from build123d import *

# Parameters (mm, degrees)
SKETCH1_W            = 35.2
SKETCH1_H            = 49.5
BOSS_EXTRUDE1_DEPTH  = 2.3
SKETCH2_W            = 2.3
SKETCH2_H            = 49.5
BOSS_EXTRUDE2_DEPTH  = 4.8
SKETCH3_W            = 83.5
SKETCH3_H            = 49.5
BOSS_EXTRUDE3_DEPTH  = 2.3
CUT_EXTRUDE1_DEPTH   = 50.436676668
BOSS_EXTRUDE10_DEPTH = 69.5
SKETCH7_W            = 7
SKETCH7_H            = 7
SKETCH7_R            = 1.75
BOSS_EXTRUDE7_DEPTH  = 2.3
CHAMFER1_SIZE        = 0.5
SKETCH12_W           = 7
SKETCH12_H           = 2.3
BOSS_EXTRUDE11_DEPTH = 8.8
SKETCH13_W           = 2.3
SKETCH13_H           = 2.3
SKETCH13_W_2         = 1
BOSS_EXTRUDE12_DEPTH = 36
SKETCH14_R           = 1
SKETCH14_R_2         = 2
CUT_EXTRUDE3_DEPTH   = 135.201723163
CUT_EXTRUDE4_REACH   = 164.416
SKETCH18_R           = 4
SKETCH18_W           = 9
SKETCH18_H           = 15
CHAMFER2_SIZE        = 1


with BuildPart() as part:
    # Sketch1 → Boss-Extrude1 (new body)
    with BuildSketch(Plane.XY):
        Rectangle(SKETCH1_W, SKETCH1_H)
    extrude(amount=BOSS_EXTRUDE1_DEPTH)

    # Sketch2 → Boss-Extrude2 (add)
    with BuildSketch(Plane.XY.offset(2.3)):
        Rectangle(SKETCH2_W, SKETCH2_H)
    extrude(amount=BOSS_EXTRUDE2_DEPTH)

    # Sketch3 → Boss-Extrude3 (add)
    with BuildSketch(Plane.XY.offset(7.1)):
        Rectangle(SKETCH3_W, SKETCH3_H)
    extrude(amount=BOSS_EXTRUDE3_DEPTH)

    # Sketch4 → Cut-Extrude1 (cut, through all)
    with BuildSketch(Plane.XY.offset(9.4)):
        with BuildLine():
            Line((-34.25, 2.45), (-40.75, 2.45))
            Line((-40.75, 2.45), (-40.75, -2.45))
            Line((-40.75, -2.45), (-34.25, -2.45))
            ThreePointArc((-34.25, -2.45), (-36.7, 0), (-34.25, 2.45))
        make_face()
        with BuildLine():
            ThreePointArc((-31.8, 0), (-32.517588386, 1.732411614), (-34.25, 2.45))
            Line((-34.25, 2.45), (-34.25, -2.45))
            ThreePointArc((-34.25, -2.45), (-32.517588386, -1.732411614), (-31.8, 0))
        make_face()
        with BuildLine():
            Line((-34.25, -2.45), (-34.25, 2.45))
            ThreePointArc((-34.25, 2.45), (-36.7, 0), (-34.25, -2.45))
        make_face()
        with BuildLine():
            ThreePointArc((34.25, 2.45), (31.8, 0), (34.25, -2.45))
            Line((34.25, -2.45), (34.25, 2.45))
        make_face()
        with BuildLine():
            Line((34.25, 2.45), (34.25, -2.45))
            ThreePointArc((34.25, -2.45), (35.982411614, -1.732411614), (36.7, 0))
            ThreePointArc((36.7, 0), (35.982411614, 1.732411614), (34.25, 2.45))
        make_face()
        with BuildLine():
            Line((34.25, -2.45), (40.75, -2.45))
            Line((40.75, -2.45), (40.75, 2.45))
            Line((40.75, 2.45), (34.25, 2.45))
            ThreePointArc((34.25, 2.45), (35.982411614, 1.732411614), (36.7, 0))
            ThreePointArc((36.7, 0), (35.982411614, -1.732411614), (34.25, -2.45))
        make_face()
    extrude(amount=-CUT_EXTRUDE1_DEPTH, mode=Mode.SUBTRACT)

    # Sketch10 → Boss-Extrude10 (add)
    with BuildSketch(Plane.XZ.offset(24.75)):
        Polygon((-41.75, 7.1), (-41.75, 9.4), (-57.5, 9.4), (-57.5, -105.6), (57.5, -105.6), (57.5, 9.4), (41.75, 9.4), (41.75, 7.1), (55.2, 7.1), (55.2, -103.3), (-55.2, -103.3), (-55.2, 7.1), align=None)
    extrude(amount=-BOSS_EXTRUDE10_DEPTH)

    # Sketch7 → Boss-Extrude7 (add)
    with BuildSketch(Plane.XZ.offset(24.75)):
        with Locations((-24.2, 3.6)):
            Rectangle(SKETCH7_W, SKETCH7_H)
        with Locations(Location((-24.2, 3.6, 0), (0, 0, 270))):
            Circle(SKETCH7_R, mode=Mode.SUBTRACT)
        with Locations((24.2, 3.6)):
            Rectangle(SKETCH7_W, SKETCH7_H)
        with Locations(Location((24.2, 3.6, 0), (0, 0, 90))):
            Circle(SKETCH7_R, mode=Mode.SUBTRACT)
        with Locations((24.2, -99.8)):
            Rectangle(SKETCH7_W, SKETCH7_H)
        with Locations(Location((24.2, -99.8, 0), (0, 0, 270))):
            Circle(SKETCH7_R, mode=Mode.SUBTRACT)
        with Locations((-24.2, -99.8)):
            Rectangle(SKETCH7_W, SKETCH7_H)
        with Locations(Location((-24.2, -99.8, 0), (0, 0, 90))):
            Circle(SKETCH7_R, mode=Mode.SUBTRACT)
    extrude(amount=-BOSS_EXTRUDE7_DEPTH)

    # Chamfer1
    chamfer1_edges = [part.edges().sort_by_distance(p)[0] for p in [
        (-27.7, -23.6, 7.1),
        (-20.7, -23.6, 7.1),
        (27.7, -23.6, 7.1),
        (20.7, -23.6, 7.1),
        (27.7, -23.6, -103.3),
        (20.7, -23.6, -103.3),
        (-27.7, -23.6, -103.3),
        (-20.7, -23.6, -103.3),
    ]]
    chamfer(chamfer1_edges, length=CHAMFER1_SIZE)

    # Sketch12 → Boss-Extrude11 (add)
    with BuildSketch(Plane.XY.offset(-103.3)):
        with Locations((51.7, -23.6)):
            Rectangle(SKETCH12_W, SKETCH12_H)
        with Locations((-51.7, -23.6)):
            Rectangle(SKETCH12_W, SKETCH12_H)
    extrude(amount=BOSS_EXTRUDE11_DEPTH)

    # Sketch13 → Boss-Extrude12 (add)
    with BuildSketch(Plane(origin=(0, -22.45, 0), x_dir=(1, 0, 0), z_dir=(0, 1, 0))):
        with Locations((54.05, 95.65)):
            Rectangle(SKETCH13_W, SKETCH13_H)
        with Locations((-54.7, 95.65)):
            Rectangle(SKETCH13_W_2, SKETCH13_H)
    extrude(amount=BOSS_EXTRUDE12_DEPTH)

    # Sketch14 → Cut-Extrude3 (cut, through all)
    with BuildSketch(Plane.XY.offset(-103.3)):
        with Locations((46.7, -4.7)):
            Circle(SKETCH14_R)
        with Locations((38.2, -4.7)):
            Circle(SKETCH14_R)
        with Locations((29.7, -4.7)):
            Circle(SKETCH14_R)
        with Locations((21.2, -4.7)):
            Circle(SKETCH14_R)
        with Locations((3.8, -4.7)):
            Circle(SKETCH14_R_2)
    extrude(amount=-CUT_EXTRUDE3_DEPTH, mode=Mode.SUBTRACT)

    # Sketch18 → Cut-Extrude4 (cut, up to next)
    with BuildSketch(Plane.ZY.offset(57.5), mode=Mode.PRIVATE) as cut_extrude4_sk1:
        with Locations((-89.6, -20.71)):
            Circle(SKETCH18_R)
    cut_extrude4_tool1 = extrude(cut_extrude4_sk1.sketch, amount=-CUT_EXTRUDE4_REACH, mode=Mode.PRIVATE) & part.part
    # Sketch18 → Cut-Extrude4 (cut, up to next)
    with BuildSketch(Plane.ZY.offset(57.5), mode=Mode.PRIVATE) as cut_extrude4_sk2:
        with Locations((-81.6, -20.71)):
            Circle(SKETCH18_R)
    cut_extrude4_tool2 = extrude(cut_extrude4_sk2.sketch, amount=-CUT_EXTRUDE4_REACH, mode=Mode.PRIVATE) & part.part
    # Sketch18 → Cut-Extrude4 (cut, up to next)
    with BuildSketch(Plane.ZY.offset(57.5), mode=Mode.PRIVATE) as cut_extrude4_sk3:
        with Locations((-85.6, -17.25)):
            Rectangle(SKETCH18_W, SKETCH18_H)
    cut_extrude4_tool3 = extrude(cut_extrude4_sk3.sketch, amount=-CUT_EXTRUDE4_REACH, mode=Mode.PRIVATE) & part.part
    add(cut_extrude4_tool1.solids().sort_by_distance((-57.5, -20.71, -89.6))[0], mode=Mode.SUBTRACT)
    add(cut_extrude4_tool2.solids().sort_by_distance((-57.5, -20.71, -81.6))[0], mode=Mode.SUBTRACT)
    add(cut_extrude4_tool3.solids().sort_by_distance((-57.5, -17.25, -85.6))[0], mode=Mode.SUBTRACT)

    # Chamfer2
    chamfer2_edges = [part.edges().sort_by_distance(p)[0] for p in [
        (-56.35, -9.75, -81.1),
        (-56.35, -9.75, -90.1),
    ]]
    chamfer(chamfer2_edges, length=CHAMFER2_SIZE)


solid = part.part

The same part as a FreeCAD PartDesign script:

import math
import FreeCAD as App
import Part
import Sketcher
from FreeCAD import Vector
Q = App.Units.Quantity


def edges_at(feature, points):
    """Names of the edges that pass closest to the given points."""
    edges = feature.Shape.Edges
    near = lambda p: min(range(len(edges)), key=lambda i: edges[i].distToShape(Part.Vertex(*p))[0])
    return sorted({f"Edge{near(p) + 1}" for p in points})


def add_polygon(sketch, points):
    """Adds a closed chain of lines whose ends are joined by coincident constraints."""
    first, n = sketch.GeometryCount, len(points)
    for a, b in zip(points, points[1:] + points[:1]):
        sketch.addGeometry(Part.LineSegment(App.Vector(*a, 0), App.Vector(*b, 0)), False)
    for i in range(n):
        sketch.addConstraint(Sketcher.Constraint("Coincident", first + i, 2, first + (i + 1) % n, 1))

doc = App.newDocument("Part")
body = doc.addObject("PartDesign::Body", "Body")

# Sketch on XY plane
sketch1 = doc.addObject("Sketcher::SketchObject", "Sketch")
body.addObject(sketch1)
sketch1.AttachmentSupport = (doc.XY_Plane, [""])
sketch1.MapMode = "FlatFace"
add_polygon(sketch1, [(-18, 25), (-18, -25), (18, -25), (18, 25)])  # lines 0-3
sketch1.addConstraint(Sketcher.Constraint("Vertical", 0))
sketch1.addConstraint(Sketcher.Constraint("Horizontal", 1))
sketch1.addConstraint(Sketcher.Constraint("Vertical", 2))
sketch1.addConstraint(Sketcher.Constraint("Horizontal", 3))
sketch1.addConstraint(Sketcher.Constraint("Symmetric", 0, 2, 2, 2, -1, 1))
sketch1.addConstraint(Sketcher.Constraint("DistanceX", 1, 1, 1, 2, Q("35.2 mm")))
sketch1.addConstraint(Sketcher.Constraint("DistanceY", 0, 2, 0, 1, Q("49.5 mm")))
pad1 = doc.addObject("PartDesign::Pad", "Pad")
body.addObject(pad1)
pad1.Profile = sketch1
pad1.Length = 2.3

# Sketch on XY plane
sketch2 = doc.addObject("Sketcher::SketchObject", "Sketch001")
body.addObject(sketch2)
sketch2.AttachmentSupport = (doc.XY_Plane, [""])
sketch2.MapMode = "FlatFace"
sketch2.AttachmentOffset = App.Placement(Vector(0, 0, 2.3), App.Rotation())
add_polygon(sketch2, [(-1.1, 24.8), (-1.1, -24.8), (1.1, -24.8), (1.1, 24.8)])  # lines 0-3
sketch2.addConstraint(Sketcher.Constraint("Vertical", 0))
sketch2.addConstraint(Sketcher.Constraint("Horizontal", 1))
sketch2.addConstraint(Sketcher.Constraint("Vertical", 2))
sketch2.addConstraint(Sketcher.Constraint("Horizontal", 3))
sketch2.addConstraint(Sketcher.Constraint("Symmetric", 0, 2, 2, 2, -1, 1))
sketch2.addConstraint(Sketcher.Constraint("DistanceX", 1, 1, 1, 2, Q("2.3 mm")))
sketch2.addConstraint(Sketcher.Constraint("DistanceY", 0, 2, 0, 1, Q("49.5 mm")))
pad2 = doc.addObject("PartDesign::Pad", "Pad001")
body.addObject(pad2)
pad2.Profile = sketch2
pad2.Length = 4.8

# Sketch on XY plane
sketch3 = doc.addObject("Sketcher::SketchObject", "Sketch002")
body.addObject(sketch3)
sketch3.AttachmentSupport = (doc.XY_Plane, [""])
sketch3.MapMode = "FlatFace"
sketch3.AttachmentOffset = App.Placement(Vector(0, 0, 7.1), App.Rotation())
add_polygon(sketch3, [(-42, 25), (-42, -25), (42, -25), (42, 25)])  # lines 0-3
sketch3.addConstraint(Sketcher.Constraint("Vertical", 0))
sketch3.addConstraint(Sketcher.Constraint("Horizontal", 1))
sketch3.addConstraint(Sketcher.Constraint("Vertical", 2))
sketch3.addConstraint(Sketcher.Constraint("Horizontal", 3))
sketch3.addConstraint(Sketcher.Constraint("Symmetric", 0, 2, 2, 2, -1, 1))
sketch3.addConstraint(Sketcher.Constraint("DistanceX", 1, 1, 1, 2, Q("83.5 mm")))
sketch3.addConstraint(Sketcher.Constraint("DistanceY", 0, 2, 0, 1, Q("49.5 mm")))
pad3 = doc.addObject("PartDesign::Pad", "Pad002")
body.addObject(pad3)
pad3.Profile = sketch3
pad3.Length = 2.3

# Sketch on XY plane
sketch4 = doc.addObject("Sketcher::SketchObject", "Sketch003")
body.addObject(sketch4)
sketch4.AttachmentSupport = (doc.XY_Plane, [""])
sketch4.MapMode = "FlatFace"
sketch4.AttachmentOffset = App.Placement(Vector(0, 0, 9.4), App.Rotation())
sketch4.addGeometry(Part.LineSegment(Vector(-40.8, 2.5, 0), Vector(-40.8, -2.5, 0)), False)
sketch4.addGeometry(Part.LineSegment(Vector(-40.8, -2.5, 0), Vector(-34.2, -2.5, 0)), False)
sketch4.addGeometry(Part.ArcOfCircle(Part.Circle(Vector(-34.2, 0, 0), Vector(0, 0, 1), 2.5), math.radians(-90), math.radians(0)), False)
sketch4.addGeometry(Part.ArcOfCircle(Part.Circle(Vector(-34.2, 0, 0), Vector(0, 0, 1), 2.5), math.radians(0), math.radians(90)), False)
sketch4.addGeometry(Part.LineSegment(Vector(-34.2, 2.5, 0), Vector(-40.8, 2.5, 0)), False)
sketch4.addGeometry(Part.ArcOfCircle(Part.Circle(Vector(34.2, 0, 0), Vector(0, 0, 1), 2.5), math.radians(90), math.radians(270)), False)
sketch4.addGeometry(Part.LineSegment(Vector(34.2, -2.5, 0), Vector(40.8, -2.5, 0)), False)
sketch4.addGeometry(Part.LineSegment(Vector(40.8, -2.5, 0), Vector(40.8, 2.5, 0)), False)
sketch4.addGeometry(Part.LineSegment(Vector(40.8, 2.5, 0), Vector(34.2, 2.5, 0)), False)
sketch4.addConstraint(Sketcher.Constraint("Coincident", 0, 2, 1, 1))
sketch4.addConstraint(Sketcher.Constraint("Tangent", 1, 2, 2, 1))
sketch4.addConstraint(Sketcher.Constraint("Tangent", 2, 2, 3, 1))
sketch4.addConstraint(Sketcher.Constraint("Tangent", 3, 2, 4, 1))
sketch4.addConstraint(Sketcher.Constraint("Coincident", 4, 2, 0, 1))
sketch4.addConstraint(Sketcher.Constraint("Tangent", 5, 2, 6, 1))
sketch4.addConstraint(Sketcher.Constraint("Coincident", 6, 2, 7, 1))
sketch4.addConstraint(Sketcher.Constraint("Coincident", 7, 2, 8, 1))
sketch4.addConstraint(Sketcher.Constraint("Tangent", 8, 2, 5, 1))
sketch4.addConstraint(Sketcher.Constraint("Vertical", 0))
sketch4.addConstraint(Sketcher.Constraint("Horizontal", 1))
sketch4.addConstraint(Sketcher.Constraint("Horizontal", 4))
sketch4.addConstraint(Sketcher.Constraint("Horizontal", 6))
sketch4.addConstraint(Sketcher.Constraint("Vertical", 7))
sketch4.addConstraint(Sketcher.Constraint("Horizontal", 8))
sketch4.addConstraint(Sketcher.Constraint("Equal", 2, 3))
sketch4.addConstraint(Sketcher.Constraint("Equal", 3, 5))
sketch4.addConstraint(Sketcher.Constraint("Symmetric", 2, 3, 5, 3, -1, 1))
sketch4.addConstraint(Sketcher.Constraint("Symmetric", 0, 2, 6, 2, -2))
sketch4.addConstraint(Sketcher.Constraint("PointOnObject", 2, 2, -1))
sketch4.addConstraint(Sketcher.Constraint("Radius", 2, Q("2.45 mm")))
sketch4.addConstraint(Sketcher.Constraint("DistanceX", 1, 1, 1, 2, Q("6.5 mm")))
sketch4.addConstraint(Sketcher.Constraint("DistanceX", 0, 2, 5, 3, Q("75 mm")))
pocket1 = doc.addObject("PartDesign::Pocket", "Pocket")
body.addObject(pocket1)
pocket1.Profile = sketch4
pocket1.Type = "ThroughAll"

# Sketch on XZ plane
sketch5 = doc.addObject("Sketcher::SketchObject", "Sketch004")
body.addObject(sketch5)
sketch5.AttachmentSupport = (doc.XZ_Plane, [""])
sketch5.MapMode = "FlatFace"
sketch5.AttachmentOffset = App.Placement(Vector(0, 0, 24.75), App.Rotation())
add_polygon(sketch5, [(-41.8, 7.1), (-41.8, 9.4), (-57.5, 9.4), (-57.5, -105.6), (57.5, -105.6), (57.5, 9.4), (41.8, 9.4), (41.8, 7.1), (55.2, 7.1), (55.2, -103.3), (-55.2, -103.3), (-55.2, 7.1)])  # lines 0-11
sketch5.addConstraint(Sketcher.Constraint("Vertical", 0))
sketch5.addConstraint(Sketcher.Constraint("Horizontal", 1))
sketch5.addConstraint(Sketcher.Constraint("Vertical", 2))
sketch5.addConstraint(Sketcher.Constraint("Horizontal", 3))
sketch5.addConstraint(Sketcher.Constraint("Vertical", 4))
sketch5.addConstraint(Sketcher.Constraint("Horizontal", 5))
sketch5.addConstraint(Sketcher.Constraint("Vertical", 6))
sketch5.addConstraint(Sketcher.Constraint("Horizontal", 7))
sketch5.addConstraint(Sketcher.Constraint("Vertical", 8))
sketch5.addConstraint(Sketcher.Constraint("Horizontal", 9))
sketch5.addConstraint(Sketcher.Constraint("Vertical", 10))
sketch5.addConstraint(Sketcher.Constraint("Horizontal", 11))
sketch5.addConstraint(Sketcher.Constraint("Symmetric", 1, 2, 4, 2, -2))
sketch5.addConstraint(Sketcher.Constraint("Symmetric", 7, 2, 10, 2, -2))
sketch5.addConstraint(Sketcher.Constraint("Equal", 1, 5))
sketch5.addConstraint(Sketcher.Constraint("Equal", 3, 2))
sketch5.addConstraint(Sketcher.Constraint("Equal", 9, 8))
sketch5.addConstraint(Sketcher.Constraint("DistanceX", 3, 1, 3, 2, Q("115 mm")))
sketch5.addConstraint(Sketcher.Constraint("DistanceX", 9, 2, 9, 1, Q("110.4 mm")))
sketch5.addConstraint(Sketcher.Constraint("DistanceY", 0, 1, 0, 2, Q("2.3 mm")))
sketch5.addConstraint(Sketcher.Constraint("DistanceX", 1, 2, 1, 1, Q("15.75 mm")))
sketch5.addConstraint(Sketcher.Constraint("DistanceY", -1, 1, 0, 2, Q("9.4 mm")))
pad4 = doc.addObject("PartDesign::Pad", "Pad003")
body.addObject(pad4)
pad4.Profile = sketch5
pad4.Length = 69.5
pad4.Reversed = True

# Sketch on XZ plane
sketch6 = doc.addObject("Sketcher::SketchObject", "Sketch005")
body.addObject(sketch6)
sketch6.AttachmentSupport = (doc.XZ_Plane, [""])
sketch6.MapMode = "FlatFace"
sketch6.AttachmentOffset = App.Placement(Vector(0, 0, 24.75), App.Rotation())
add_polygon(sketch6, [(-27.7, 7.1), (-27.7, 0.1), (-20.7, 0.1), (-20.7, 7.1)])  # lines 0-3
sketch6.addGeometry(Part.Circle(Vector(-24.2, 3.6, 0), Vector(0, 0, 1), 1.8), False)  # 4
add_polygon(sketch6, [(20.7, 7.1), (20.7, 0.1), (27.7, 0.1), (27.7, 7.1)])  # lines 5-8
sketch6.addGeometry(Part.Circle(Vector(24.2, 3.6, 0), Vector(0, 0, 1), 1.8), False)  # 9
add_polygon(sketch6, [(20.7, -96.3), (20.7, -103.3), (27.7, -103.3), (27.7, -96.3)])  # lines 10-13
sketch6.addGeometry(Part.Circle(Vector(24.2, -99.8, 0), Vector(0, 0, 1), 1.8), False)  # 14
add_polygon(sketch6, [(-27.7, -96.3), (-27.7, -103.3), (-20.7, -103.3), (-20.7, -96.3)])  # lines 15-18
sketch6.addGeometry(Part.Circle(Vector(-24.2, -99.8, 0), Vector(0, 0, 1), 1.8), False)  # 19
sketch6.addConstraint(Sketcher.Constraint("Vertical", 0))
sketch6.addConstraint(Sketcher.Constraint("Horizontal", 1))
sketch6.addConstraint(Sketcher.Constraint("Vertical", 2))
sketch6.addConstraint(Sketcher.Constraint("Horizontal", 3))
sketch6.addConstraint(Sketcher.Constraint("Vertical", 5))
sketch6.addConstraint(Sketcher.Constraint("Horizontal", 6))
sketch6.addConstraint(Sketcher.Constraint("Vertical", 7))
sketch6.addConstraint(Sketcher.Constraint("Horizontal", 8))
sketch6.addConstraint(Sketcher.Constraint("Vertical", 10))
sketch6.addConstraint(Sketcher.Constraint("Horizontal", 11))
sketch6.addConstraint(Sketcher.Constraint("Vertical", 12))
sketch6.addConstraint(Sketcher.Constraint("Horizontal", 13))
sketch6.addConstraint(Sketcher.Constraint("Vertical", 15))
sketch6.addConstraint(Sketcher.Constraint("Horizontal", 16))
sketch6.addConstraint(Sketcher.Constraint("Vertical", 17))
sketch6.addConstraint(Sketcher.Constraint("Horizontal", 18))
sketch6.addConstraint(Sketcher.Constraint("Equal", 4, 9))
sketch6.addConstraint(Sketcher.Constraint("Equal", 9, 14))
sketch6.addConstraint(Sketcher.Constraint("Equal", 14, 19))
sketch6.addConstraint(Sketcher.Constraint("Symmetric", 4, 3, 9, 3, -2))
sketch6.addConstraint(Sketcher.Constraint("Symmetric", 14, 3, 19, 3, -2))
sketch6.addConstraint(Sketcher.Constraint("Symmetric", 1, 2, 5, 2, -2))
sketch6.addConstraint(Sketcher.Constraint("Symmetric", 3, 2, 7, 2, -2))
sketch6.addConstraint(Sketcher.Constraint("Symmetric", 11, 2, 15, 2, -2))
sketch6.addConstraint(Sketcher.Constraint("Symmetric", 13, 2, 17, 2, -2))
sketch6.addConstraint(Sketcher.Constraint("Vertical", 9, 3, 14, 3))
sketch6.addConstraint(Sketcher.Constraint("Vertical", 8, 2, 10, 2))
sketch6.addConstraint(Sketcher.Constraint("Vertical", 7, 2, 11, 2))
sketch6.addConstraint(Sketcher.Constraint("Equal", 18, 0))
sketch6.addConstraint(Sketcher.Constraint("Equal", 7, 10))
sketch6.addConstraint(Sketcher.Constraint("Diameter", 4, Q("3.5 mm")))
sketch6.addConstraint(Sketcher.Constraint("DistanceX", 1, 1, 1, 2, Q("7 mm")))
sketch6.addConstraint(Sketcher.Constraint("DistanceX", 4, 3, -1, 1, Q("24.2 mm")))
sketch6.addConstraint(Sketcher.Constraint("DistanceY", -1, 1, 4, 3, Q("3.6 mm")))
sketch6.addConstraint(Sketcher.Constraint("DistanceY", 14, 3, -1, 1, Q("99.8 mm")))
sketch6.addConstraint(Sketcher.Constraint("DistanceX", 0, 2, -1, 1, Q("27.7 mm")))
sketch6.addConstraint(Sketcher.Constraint("DistanceY", -1, 1, 0, 2, Q("0.1 mm")))
sketch6.addConstraint(Sketcher.Constraint("DistanceY", 10, 2, -1, 1, Q("103.3 mm")))
pad5 = doc.addObject("PartDesign::Pad", "Pad004")
body.addObject(pad5)
pad5.Profile = sketch6
pad5.Length = 2.3
pad5.Reversed = True
doc.recompute()

chamfer = doc.addObject("PartDesign::Chamfer", "Chamfer")
body.addObject(chamfer)
chamfer.Base = (pad5, edges_at(pad5, [
    (-27.7, -23.6, 7.1),
    (-20.7, -23.6, 7.1),
    (27.7, -23.6, 7.1),
    (20.7, -23.6, 7.1),
    (27.7, -23.6, -103.3),
    (20.7, -23.6, -103.3),
    (-27.7, -23.6, -103.3),
    (-20.7, -23.6, -103.3),
]))
chamfer.Size = 0.5

# Sketch on XY plane
sketch7 = doc.addObject("Sketcher::SketchObject", "Sketch006")
body.addObject(sketch7)
sketch7.AttachmentSupport = (doc.XY_Plane, [""])
sketch7.MapMode = "FlatFace"
sketch7.AttachmentOffset = App.Placement(Vector(0, 0, -103.3), App.Rotation())
add_polygon(sketch7, [(48.2, -22.4), (48.2, -24.8), (55.2, -24.8), (55.2, -22.4)])  # lines 0-3
add_polygon(sketch7, [(-55.2, -22.4), (-55.2, -24.8), (-48.2, -24.8), (-48.2, -22.4)])  # lines 4-7
sketch7.addConstraint(Sketcher.Constraint("Vertical", 0))
sketch7.addConstraint(Sketcher.Constraint("Horizontal", 1))
sketch7.addConstraint(Sketcher.Constraint("Vertical", 2))
sketch7.addConstraint(Sketcher.Constraint("Horizontal", 3))
sketch7.addConstraint(Sketcher.Constraint("Vertical", 4))
sketch7.addConstraint(Sketcher.Constraint("Horizontal", 5))
sketch7.addConstraint(Sketcher.Constraint("Vertical", 6))
sketch7.addConstraint(Sketcher.Constraint("Horizontal", 7))
sketch7.addConstraint(Sketcher.Constraint("Symmetric", 1, 2, 4, 2, -2))
sketch7.addConstraint(Sketcher.Constraint("Symmetric", 3, 2, 6, 2, -2))
sketch7.addConstraint(Sketcher.Constraint("DistanceX", 1, 1, 1, 2, Q("7 mm")))
sketch7.addConstraint(Sketcher.Constraint("DistanceY", 0, 2, 0, 1, Q("2.3 mm")))
sketch7.addConstraint(Sketcher.Constraint("DistanceX", -1, 1, 0, 2, Q("48.2 mm")))
sketch7.addConstraint(Sketcher.Constraint("DistanceY", 0, 2, -1, 1, Q("24.75 mm")))
pad6 = doc.addObject("PartDesign::Pad", "Pad005")
body.addObject(pad6)
pad6.Profile = sketch7
pad6.Length = 8.8

# Sketch on XZ plane
sketch8 = doc.addObject("Sketcher::SketchObject", "Sketch007")
body.addObject(sketch8)
sketch8.AttachmentSupport = (doc.XZ_Plane, [""])
sketch8.MapMode = "FlatFace"
sketch8.AttachmentOffset = App.Placement(Vector(0, 0, 22.45), App.Rotation())
add_polygon(sketch8, [(52.9, -96.8), (52.9, -94.5), (55.2, -94.5), (55.2, -96.8)])  # lines 0-3
add_polygon(sketch8, [(-55.2, -96.8), (-55.2, -94.5), (-54.2, -94.5), (-54.2, -96.8)])  # lines 4-7
sketch8.addConstraint(Sketcher.Constraint("Vertical", 0))
sketch8.addConstraint(Sketcher.Constraint("Horizontal", 1))
sketch8.addConstraint(Sketcher.Constraint("Vertical", 2))
sketch8.addConstraint(Sketcher.Constraint("Horizontal", 3))
sketch8.addConstraint(Sketcher.Constraint("Vertical", 4))
sketch8.addConstraint(Sketcher.Constraint("Horizontal", 5))
sketch8.addConstraint(Sketcher.Constraint("Vertical", 6))
sketch8.addConstraint(Sketcher.Constraint("Horizontal", 7))
sketch8.addConstraint(Sketcher.Constraint("Symmetric", 1, 2, 4, 2, -2))
sketch8.addConstraint(Sketcher.Constraint("Horizontal", 3, 2, 6, 2))
sketch8.addConstraint(Sketcher.Constraint("Equal", 3, 0))
sketch8.addConstraint(Sketcher.Constraint("DistanceX", 5, 1, 5, 2, Q("1 mm")))
sketch8.addConstraint(Sketcher.Constraint("DistanceX", 1, 1, 1, 2, Q("2.3 mm")))
sketch8.addConstraint(Sketcher.Constraint("DistanceX", -1, 1, 0, 2, Q("52.9 mm")))
sketch8.addConstraint(Sketcher.Constraint("DistanceY", 0, 2, -1, 1, Q("94.5 mm")))
pad7 = doc.addObject("PartDesign::Pad", "Pad006")
body.addObject(pad7)
pad7.Profile = sketch8
pad7.Length = 36
pad7.Reversed = True

# Sketch on XY plane
sketch9 = doc.addObject("Sketcher::SketchObject", "Sketch008")
body.addObject(sketch9)
sketch9.AttachmentSupport = (doc.XY_Plane, [""])
sketch9.MapMode = "FlatFace"
sketch9.AttachmentOffset = App.Placement(Vector(0, 0, -103.3), App.Rotation())
sketch9.addGeometry(Part.Circle(Vector(46.7, -4.7, 0), Vector(0, 0, 1), 1), False)
sketch9.addGeometry(Part.Circle(Vector(38.2, -4.7, 0), Vector(0, 0, 1), 1), False)
sketch9.addGeometry(Part.Circle(Vector(29.7, -4.7, 0), Vector(0, 0, 1), 1), False)
sketch9.addGeometry(Part.Circle(Vector(21.2, -4.7, 0), Vector(0, 0, 1), 1), False)
sketch9.addGeometry(Part.Circle(Vector(3.8, -4.7, 0), Vector(0, 0, 1), 2), False)
sketch9.addConstraint(Sketcher.Constraint("Equal", 0, 1))
sketch9.addConstraint(Sketcher.Constraint("Equal", 1, 2))
sketch9.addConstraint(Sketcher.Constraint("Equal", 2, 3))
sketch9.addConstraint(Sketcher.Constraint("Horizontal", 0, 3, 1, 3))
sketch9.addConstraint(Sketcher.Constraint("Horizontal", 1, 3, 2, 3))
sketch9.addConstraint(Sketcher.Constraint("Horizontal", 2, 3, 3, 3))
sketch9.addConstraint(Sketcher.Constraint("Horizontal", 3, 3, 4, 3))
sketch9.addConstraint(Sketcher.Constraint("Diameter", 0, Q("2 mm")))
sketch9.addConstraint(Sketcher.Constraint("Diameter", 4, Q("4 mm")))
sketch9.addConstraint(Sketcher.Constraint("DistanceX", 2, 3, 0, 3, Q("17 mm")))
sketch9.addConstraint(Sketcher.Constraint("DistanceX", 3, 3, 1, 3, Q("17 mm")))
sketch9.addConstraint(Sketcher.Constraint("DistanceX", -1, 1, 0, 3, Q("46.7 mm")))
sketch9.addConstraint(Sketcher.Constraint("DistanceY", 0, 3, -1, 1, Q("4.7 mm")))
sketch9.addConstraint(Sketcher.Constraint("DistanceX", -1, 1, 1, 3, Q("38.2 mm")))
sketch9.addConstraint(Sketcher.Constraint("DistanceX", -1, 1, 4, 3, Q("3.8 mm")))
pocket2 = doc.addObject("PartDesign::Pocket", "Pocket001")
body.addObject(pocket2)
pocket2.Profile = sketch9
pocket2.Type = "ThroughAll"

# Sketch on YZ plane
sketch10 = doc.addObject("Sketcher::SketchObject", "Sketch009")
body.addObject(sketch10)
sketch10.AttachmentSupport = (doc.YZ_Plane, [""])
sketch10.MapMode = "FlatFace"
sketch10.AttachmentOffset = App.Placement(Vector(0, 0, -57.5), App.Rotation())
sketch10.addGeometry(Part.Circle(Vector(-20.7, -89.6, 0), Vector(0, 0, 1), 4), False)
sketch10.addConstraint(Sketcher.Constraint("Diameter", 0, Q("8 mm")))
sketch10.addConstraint(Sketcher.Constraint("DistanceY", 0, 3, -1, 1, Q("89.6 mm")))
sketch10.addConstraint(Sketcher.Constraint("DistanceX", 0, 3, -1, 1, Q("20.71 mm")))
pocket3 = doc.addObject("PartDesign::Pocket", "Pocket002")
body.addObject(pocket3)
pocket3.Profile = sketch10
pocket3.Type = "UpToFirst"
pocket3.Reversed = True

# Sketch on YZ plane
sketch11 = doc.addObject("Sketcher::SketchObject", "Sketch010")
body.addObject(sketch11)
sketch11.AttachmentSupport = (doc.YZ_Plane, [""])
sketch11.MapMode = "FlatFace"
sketch11.AttachmentOffset = App.Placement(Vector(0, 0, -57.5), App.Rotation())
sketch11.addGeometry(Part.Circle(Vector(-20.7, -81.6, 0), Vector(0, 0, 1), 4), False)
sketch11.addConstraint(Sketcher.Constraint("Diameter", 0, Q("8 mm")))
sketch11.addConstraint(Sketcher.Constraint("DistanceY", 0, 3, -1, 1, Q("81.6 mm")))
sketch11.addConstraint(Sketcher.Constraint("DistanceX", 0, 3, -1, 1, Q("20.71 mm")))
pocket4 = doc.addObject("PartDesign::Pocket", "Pocket003")
body.addObject(pocket4)
pocket4.Profile = sketch11
pocket4.Type = "UpToFirst"
pocket4.Reversed = True

# Sketch on YZ plane
sketch12 = doc.addObject("Sketcher::SketchObject", "Sketch011")
body.addObject(sketch12)
sketch12.AttachmentSupport = (doc.YZ_Plane, [""])
sketch12.MapMode = "FlatFace"
sketch12.AttachmentOffset = App.Placement(Vector(0, 0, -57.5), App.Rotation())
add_polygon(sketch12, [(-10, -90), (-25, -90), (-25, -81), (-10, -81)])  # lines 0-3
sketch12.addConstraint(Sketcher.Constraint("Horizontal", 0))
sketch12.addConstraint(Sketcher.Constraint("Vertical", 1))
sketch12.addConstraint(Sketcher.Constraint("Horizontal", 2))
sketch12.addConstraint(Sketcher.Constraint("Vertical", 3))
sketch12.addConstraint(Sketcher.Constraint("DistanceX", 0, 2, 0, 1, Q("15 mm")))
sketch12.addConstraint(Sketcher.Constraint("DistanceY", 1, 1, 1, 2, Q("9 mm")))
sketch12.addConstraint(Sketcher.Constraint("DistanceY", 0, 2, -1, 1, Q("90.1 mm")))
sketch12.addConstraint(Sketcher.Constraint("DistanceX", 0, 2, -1, 1, Q("24.75 mm")))
pocket5 = doc.addObject("PartDesign::Pocket", "Pocket004")
body.addObject(pocket5)
pocket5.Profile = sketch12
pocket5.Type = "UpToFirst"
pocket5.Reversed = True
doc.recompute()

chamfer2 = doc.addObject("PartDesign::Chamfer", "Chamfer001")
body.addObject(chamfer2)
chamfer2.Base = (pocket5, edges_at(pocket5, [(-56.35, -9.75, -81.1), (-56.35, -9.75, -90.1)]))
chamfer2.Size = 1

doc.recompute()
